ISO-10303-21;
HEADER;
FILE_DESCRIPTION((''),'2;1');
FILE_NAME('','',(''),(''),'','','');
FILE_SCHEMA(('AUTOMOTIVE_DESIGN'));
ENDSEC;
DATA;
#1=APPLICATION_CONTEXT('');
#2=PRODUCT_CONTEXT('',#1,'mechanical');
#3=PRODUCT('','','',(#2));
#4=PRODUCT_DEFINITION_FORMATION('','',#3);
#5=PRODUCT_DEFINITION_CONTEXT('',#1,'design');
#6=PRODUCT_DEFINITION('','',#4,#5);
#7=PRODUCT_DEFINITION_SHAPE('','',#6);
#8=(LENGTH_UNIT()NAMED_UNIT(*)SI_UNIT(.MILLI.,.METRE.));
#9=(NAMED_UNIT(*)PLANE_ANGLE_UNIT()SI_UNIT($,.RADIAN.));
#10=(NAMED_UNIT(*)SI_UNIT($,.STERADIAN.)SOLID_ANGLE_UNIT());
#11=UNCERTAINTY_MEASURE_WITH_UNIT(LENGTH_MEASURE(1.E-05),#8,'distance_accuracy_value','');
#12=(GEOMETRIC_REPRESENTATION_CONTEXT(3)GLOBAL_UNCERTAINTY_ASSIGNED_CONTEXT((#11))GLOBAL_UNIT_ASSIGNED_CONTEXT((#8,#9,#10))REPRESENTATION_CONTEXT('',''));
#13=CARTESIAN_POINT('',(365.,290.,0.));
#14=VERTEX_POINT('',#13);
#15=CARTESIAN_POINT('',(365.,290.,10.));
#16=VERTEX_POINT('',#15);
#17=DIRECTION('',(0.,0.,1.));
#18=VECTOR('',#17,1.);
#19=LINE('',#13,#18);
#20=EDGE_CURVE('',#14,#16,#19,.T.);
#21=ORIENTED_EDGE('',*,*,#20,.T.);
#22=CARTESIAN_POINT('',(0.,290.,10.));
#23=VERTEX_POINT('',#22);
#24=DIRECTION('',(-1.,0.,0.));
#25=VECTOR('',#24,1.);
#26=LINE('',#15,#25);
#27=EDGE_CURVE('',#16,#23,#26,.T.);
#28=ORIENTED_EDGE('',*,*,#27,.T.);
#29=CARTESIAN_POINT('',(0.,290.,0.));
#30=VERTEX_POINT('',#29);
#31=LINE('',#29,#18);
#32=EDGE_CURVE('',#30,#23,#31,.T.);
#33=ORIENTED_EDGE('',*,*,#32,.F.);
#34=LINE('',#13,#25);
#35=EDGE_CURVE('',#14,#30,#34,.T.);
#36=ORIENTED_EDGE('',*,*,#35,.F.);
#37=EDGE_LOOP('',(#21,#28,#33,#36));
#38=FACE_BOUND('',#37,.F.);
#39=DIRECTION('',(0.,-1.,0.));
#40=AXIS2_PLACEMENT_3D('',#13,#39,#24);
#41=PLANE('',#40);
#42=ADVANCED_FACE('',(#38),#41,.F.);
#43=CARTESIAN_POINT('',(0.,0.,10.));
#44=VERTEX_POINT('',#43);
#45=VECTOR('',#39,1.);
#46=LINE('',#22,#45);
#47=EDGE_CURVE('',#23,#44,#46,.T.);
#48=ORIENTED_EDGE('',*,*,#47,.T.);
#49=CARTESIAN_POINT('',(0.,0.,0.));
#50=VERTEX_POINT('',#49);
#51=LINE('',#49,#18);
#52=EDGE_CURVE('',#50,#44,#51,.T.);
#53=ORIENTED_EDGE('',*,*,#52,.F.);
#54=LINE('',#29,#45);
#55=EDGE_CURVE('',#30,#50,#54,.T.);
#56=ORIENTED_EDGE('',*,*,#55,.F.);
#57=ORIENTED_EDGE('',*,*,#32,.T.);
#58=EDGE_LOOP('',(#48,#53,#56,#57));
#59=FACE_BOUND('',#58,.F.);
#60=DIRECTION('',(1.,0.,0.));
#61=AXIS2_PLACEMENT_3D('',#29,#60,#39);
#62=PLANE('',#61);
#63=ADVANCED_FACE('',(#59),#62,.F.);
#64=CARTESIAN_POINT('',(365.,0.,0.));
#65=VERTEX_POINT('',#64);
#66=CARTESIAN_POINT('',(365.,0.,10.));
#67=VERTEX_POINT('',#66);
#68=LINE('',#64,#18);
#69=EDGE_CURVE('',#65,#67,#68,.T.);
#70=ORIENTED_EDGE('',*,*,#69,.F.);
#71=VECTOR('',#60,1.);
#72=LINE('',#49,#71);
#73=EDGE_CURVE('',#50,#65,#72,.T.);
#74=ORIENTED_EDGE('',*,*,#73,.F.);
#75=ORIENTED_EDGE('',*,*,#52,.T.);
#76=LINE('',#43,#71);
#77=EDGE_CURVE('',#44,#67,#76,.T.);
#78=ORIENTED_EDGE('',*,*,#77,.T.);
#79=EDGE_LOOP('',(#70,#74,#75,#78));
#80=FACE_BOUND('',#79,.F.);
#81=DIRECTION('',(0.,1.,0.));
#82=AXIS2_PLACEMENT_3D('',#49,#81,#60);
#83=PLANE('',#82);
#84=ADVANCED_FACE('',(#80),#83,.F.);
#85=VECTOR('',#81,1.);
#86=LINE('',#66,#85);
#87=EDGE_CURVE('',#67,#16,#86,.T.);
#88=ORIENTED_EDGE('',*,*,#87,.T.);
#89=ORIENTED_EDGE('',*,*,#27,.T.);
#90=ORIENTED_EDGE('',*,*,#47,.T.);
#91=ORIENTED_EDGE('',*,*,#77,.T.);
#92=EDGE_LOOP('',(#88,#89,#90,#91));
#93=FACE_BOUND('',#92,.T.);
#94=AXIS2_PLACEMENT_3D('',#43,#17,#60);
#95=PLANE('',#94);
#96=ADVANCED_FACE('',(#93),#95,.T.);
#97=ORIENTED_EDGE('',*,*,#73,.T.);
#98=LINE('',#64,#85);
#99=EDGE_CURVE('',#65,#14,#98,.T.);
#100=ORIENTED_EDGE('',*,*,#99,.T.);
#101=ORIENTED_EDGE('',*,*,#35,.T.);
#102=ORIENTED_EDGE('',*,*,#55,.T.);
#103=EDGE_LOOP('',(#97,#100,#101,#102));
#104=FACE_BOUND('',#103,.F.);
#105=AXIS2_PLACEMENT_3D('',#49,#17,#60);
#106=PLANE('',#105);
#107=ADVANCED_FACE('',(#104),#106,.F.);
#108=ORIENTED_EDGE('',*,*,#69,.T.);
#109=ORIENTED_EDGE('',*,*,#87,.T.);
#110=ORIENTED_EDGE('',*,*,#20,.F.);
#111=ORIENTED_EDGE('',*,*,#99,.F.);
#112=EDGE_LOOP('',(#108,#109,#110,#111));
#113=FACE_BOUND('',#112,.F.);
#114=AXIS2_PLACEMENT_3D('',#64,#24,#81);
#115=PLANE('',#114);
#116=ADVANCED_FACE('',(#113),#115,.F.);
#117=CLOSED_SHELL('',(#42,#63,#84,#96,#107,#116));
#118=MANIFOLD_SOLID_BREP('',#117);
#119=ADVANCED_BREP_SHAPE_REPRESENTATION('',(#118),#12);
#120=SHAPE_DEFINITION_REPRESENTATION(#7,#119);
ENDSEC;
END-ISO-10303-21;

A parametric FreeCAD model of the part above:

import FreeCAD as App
import Part
import Sketcher
from FreeCAD import Vector
Q = App.Units.Quantity


def add_polygon(sketch, points):
    """Adds a closed chain of lines whose ends are joined by coincident constraints."""
    first, n = sketch.GeometryCount, len(points)
    for a, b in zip(points, points[1:] + points[:1]):
        sketch.addGeometry(Part.LineSegment(App.Vector(*a, 0), App.Vector(*b, 0)), False)
    for i in range(n):
        sketch.addConstraint(Sketcher.Constraint("Coincident", first + i, 2, first + (i + 1) % n, 1))

doc = App.newDocument("Part")
body = doc.addObject("PartDesign::Body", "Body")

# Sketch on XY plane
sketch1 = body.newObject("Sketcher::SketchObject", "Sketch")
sketch1.AttachmentSupport = (doc.getObject("XY_Plane"), [""])
sketch1.MapMode = "FlatFace"
add_polygon(sketch1, [(0, 290), (0, 0), (365, 0), (365, 290)])  # lines 0-3
sketch1.addConstraint(Sketcher.Constraint("Vertical", 0))
sketch1.addConstraint(Sketcher.Constraint("Horizontal", 1))
sketch1.addConstraint(Sketcher.Constraint("Vertical", 2))
sketch1.addConstraint(Sketcher.Constraint("Horizontal", 3))
sketch1.addConstraint(Sketcher.Constraint("Coincident", 0, 2, -1, 1))
sketch1.addConstraint(Sketcher.Constraint("DistanceX", 1, 1, 1, 2, Q("365 mm")))
sketch1.addConstraint(Sketcher.Constraint("DistanceY", 0, 2, 0, 1, Q("290 mm")))
pad1 = body.newObject("PartDesign::Pad", "Pad")
pad1.Profile = sketch1
pad1.Length = 10

doc.recompute()
